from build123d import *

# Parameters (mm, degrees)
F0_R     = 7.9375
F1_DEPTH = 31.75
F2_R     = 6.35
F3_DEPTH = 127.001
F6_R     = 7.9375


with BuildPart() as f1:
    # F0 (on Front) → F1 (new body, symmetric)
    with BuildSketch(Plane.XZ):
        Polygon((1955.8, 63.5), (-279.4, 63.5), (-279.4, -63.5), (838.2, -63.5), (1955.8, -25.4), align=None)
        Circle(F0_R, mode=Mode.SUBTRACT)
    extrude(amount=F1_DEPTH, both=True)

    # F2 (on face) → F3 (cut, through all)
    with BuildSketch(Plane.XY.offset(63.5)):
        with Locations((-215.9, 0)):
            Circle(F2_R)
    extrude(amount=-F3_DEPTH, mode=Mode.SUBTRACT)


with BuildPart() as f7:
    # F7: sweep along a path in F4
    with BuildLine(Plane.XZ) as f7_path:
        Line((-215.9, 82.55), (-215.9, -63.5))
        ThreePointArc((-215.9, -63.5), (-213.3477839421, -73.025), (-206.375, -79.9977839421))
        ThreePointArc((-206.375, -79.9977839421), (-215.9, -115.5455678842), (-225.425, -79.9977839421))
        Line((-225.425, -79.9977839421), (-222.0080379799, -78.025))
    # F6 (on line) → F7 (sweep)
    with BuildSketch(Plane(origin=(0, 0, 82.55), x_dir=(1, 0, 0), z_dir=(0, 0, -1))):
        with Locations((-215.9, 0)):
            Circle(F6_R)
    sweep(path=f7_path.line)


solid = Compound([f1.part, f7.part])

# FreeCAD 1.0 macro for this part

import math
import FreeCAD as App
import Part
import Sketcher

V = App.Vector
Q = App.Units.Quantity

doc = App.newDocument("Part")
body = doc.addObject("PartDesign::Body", "Body")

sketch1 = doc.addObject("Sketcher::SketchObject", "Sketch")
body.addObject(sketch1)
sketch1.AttachmentSupport = (doc.XZ_Plane, [""])
sketch1.MapMode = "FlatFace"
sketch1.addGeometry(Part.LineSegment(V(1956, 64, 0), V(-279, 64, 0)), False)
sketch1.addGeometry(Part.LineSegment(V(-279, 64, 0), V(-279, -64, 0)), False)
sketch1.addGeometry(Part.LineSegment(V(-279, -64, 0), V(838, -64, 0)), False)
sketch1.addGeometry(Part.LineSegment(V(838, -64, 0), V(1956, -25, 0)), False)
sketch1.addGeometry(Part.LineSegment(V(1956, -25, 0), V(1956, 64, 0)), False)
sketch1.addGeometry(Part.Circle(V(0, 0, 0), V(0, 0, 1), 8), False)
sketch1.addConstraint(Sketcher.Constraint("Coincident", 0, 2, 1, 1))
sketch1.addConstraint(Sketcher.Constraint("Coincident", 1, 2, 2, 1))
sketch1.addConstraint(Sketcher.Constraint("Coincident", 2, 2, 3, 1))
sketch1.addConstraint(Sketcher.Constraint("Coincident", 3, 2, 4, 1))
sketch1.addConstraint(Sketcher.Constraint("Coincident", 4, 2, 0, 1))
sketch1.addConstraint(Sketcher.Constraint("Horizontal", 0))
sketch1.addConstraint(Sketcher.Constraint("Vertical", 1))
sketch1.addConstraint(Sketcher.Constraint("Horizontal", 2))
sketch1.addConstraint(Sketcher.Constraint("Vertical", 4))
sketch1.addConstraint(Sketcher.Constraint("Coincident", 5, 3, -1, 1))
sketch1.addConstraint(Sketcher.Constraint("DistanceX", 0, 2, 0, 1, Q("88 in")))
sketch1.addConstraint(Sketcher.Constraint("DistanceX", 2, 1, 2, 2, Q("44 in")))
sketch1.addConstraint(Sketcher.Constraint("DistanceY", 1, 2, 1, 1, Q("5 in")))
sketch1.addConstraint(Sketcher.Constraint("Diameter", 5, Q("0.625 in")))
sketch1.addConstraint(Sketcher.Constraint("DistanceY", 4, 1, 4, 2, Q("3.5 in")))
sketch1.addConstraint(Sketcher.Constraint("DistanceX", 0, 2, -1, 1, Q("11 in")))
sketch1.addConstraint(Sketcher.Constraint("DistanceY", 3, 2, -1, 1, Q("1 in")))
pad1 = doc.addObject("PartDesign::Pad", "Pad")
body.addObject(pad1)
pad1.Profile = sketch1
pad1.Length = Q("2.5 in")
pad1.Midplane = True

sketch2 = doc.addObject("Sketcher::SketchObject", "Sketch001")
body.addObject(sketch2)
sketch2.AttachmentSupport = (doc.XY_Plane, [""])
sketch2.MapMode = "FlatFace"
sketch2.AttachmentOffset = App.Placement(V(0, 0, 2.5 * 25.4), App.Rotation())
sketch2.addGeometry(Part.Circle(V(-216, 0, 0), V(0, 0, 1), 6), False)
sketch2.addConstraint(Sketcher.Constraint("PointOnObject", 0, 3, -1))
sketch2.addConstraint(Sketcher.Constraint("Diameter", 0, Q("0.5 in")))
sketch2.addConstraint(Sketcher.Constraint("DistanceX", 0, 3, -1, 1, Q("8.5 in")))
pocket1 = doc.addObject("PartDesign::Pocket", "Pocket")
body.addObject(pocket1)
pocket1.Profile = sketch2
pocket1.Type = "ThroughAll"
body2 = doc.addObject("PartDesign::Body", "Body001")

sketch3 = doc.addObject("Sketcher::SketchObject", "Sketch002")
body2.addObject(sketch3)
sketch3.AttachmentSupport = (doc.getObject("XY_Plane001"), [""])
sketch3.MapMode = "FlatFace"
sketch3.AttachmentOffset = App.Placement(V(0, 0, 3.25 * 25.4), App.Rotation())
sketch3.addGeometry(Part.Circle(V(-216, 0, 0), V(0, 0, 1), 8), False)
sketch3.addConstraint(Sketcher.Constraint("PointOnObject", 0, 3, -1))
sketch3.addConstraint(Sketcher.Constraint("Diameter", 0, Q("0.625 in")))
sketch3.addConstraint(Sketcher.Constraint("DistanceX", 0, 3, -1, 1, Q("8.5 in")))

sketch4 = doc.addObject("Sketcher::SketchObject", "Sketch003")
body2.addObject(sketch4)
sketch4.AttachmentSupport = (doc.getObject("XZ_Plane001"), [""])
sketch4.MapMode = "FlatFace"
sketch4.addGeometry(Part.LineSegment(V(-215.9, 82.5, 0), V(-215.9, -63.5, 0)), False)
sketch4.addGeometry(Part.ArcOfCircle(Part.Circle(V(-196.8, -63.5, 0), V(0, 0, 1), 19.1), math.radians(180), math.radians(240)), False)
sketch4.addGeometry(Part.ArcOfCircle(Part.Circle(V(-215.9, -96.5, 0), V(0, 0, 1), 19.1), math.radians(120), math.radians(420)), False)
sketch4.addGeometry(Part.LineSegment(V(-225.4, -80, 0), V(-222, -78, 0)), False)
sketch4.addConstraint(Sketcher.Constraint("Tangent", 0, 2, 1, 1))
sketch4.addConstraint(Sketcher.Constraint("Tangent", 1, 2, 2, 2))
sketch4.addConstraint(Sketcher.Constraint("Tangent", 2, 1, 3, 1))
sketch4.addConstraint(Sketcher.Constraint("Vertical", 0))
sketch4.addConstraint(Sketcher.Constraint("Equal", 1, 2))
sketch4.addConstraint(Sketcher.Constraint("Horizontal", 1, 2, 2, 1))
sketch4.addConstraint(Sketcher.Constraint("Vertical", 2, 3, 0, 1))
sketch4.addConstraint(Sketcher.Constraint("Radius", 1, Q("0.75 in")))
sketch4.addConstraint(Sketcher.Constraint("DistanceY", 0, 2, 0, 1, Q("5.75 in")))
sketch4.addConstraint(Sketcher.Constraint("DistanceY", 1, 3, -1, 1, Q("2.5 in")))
sketch4.addConstraint(Sketcher.Constraint("DistanceX", 2, 3, -1, 1, Q("8.5 in")))
sketch4.addConstraint(Sketcher.Constraint("DistanceY", 3, 2, -1, 1, Q("78.025 mm")))
doc.recompute()

additivepipe = doc.addObject("PartDesign::AdditivePipe", "AdditivePipe")
body2.addObject(additivepipe)
additivepipe.Profile = sketch3
additivepipe.Spine = (sketch4, ["Edge1", "Edge2", "Edge3", "Edge4"])

doc.recompute()
